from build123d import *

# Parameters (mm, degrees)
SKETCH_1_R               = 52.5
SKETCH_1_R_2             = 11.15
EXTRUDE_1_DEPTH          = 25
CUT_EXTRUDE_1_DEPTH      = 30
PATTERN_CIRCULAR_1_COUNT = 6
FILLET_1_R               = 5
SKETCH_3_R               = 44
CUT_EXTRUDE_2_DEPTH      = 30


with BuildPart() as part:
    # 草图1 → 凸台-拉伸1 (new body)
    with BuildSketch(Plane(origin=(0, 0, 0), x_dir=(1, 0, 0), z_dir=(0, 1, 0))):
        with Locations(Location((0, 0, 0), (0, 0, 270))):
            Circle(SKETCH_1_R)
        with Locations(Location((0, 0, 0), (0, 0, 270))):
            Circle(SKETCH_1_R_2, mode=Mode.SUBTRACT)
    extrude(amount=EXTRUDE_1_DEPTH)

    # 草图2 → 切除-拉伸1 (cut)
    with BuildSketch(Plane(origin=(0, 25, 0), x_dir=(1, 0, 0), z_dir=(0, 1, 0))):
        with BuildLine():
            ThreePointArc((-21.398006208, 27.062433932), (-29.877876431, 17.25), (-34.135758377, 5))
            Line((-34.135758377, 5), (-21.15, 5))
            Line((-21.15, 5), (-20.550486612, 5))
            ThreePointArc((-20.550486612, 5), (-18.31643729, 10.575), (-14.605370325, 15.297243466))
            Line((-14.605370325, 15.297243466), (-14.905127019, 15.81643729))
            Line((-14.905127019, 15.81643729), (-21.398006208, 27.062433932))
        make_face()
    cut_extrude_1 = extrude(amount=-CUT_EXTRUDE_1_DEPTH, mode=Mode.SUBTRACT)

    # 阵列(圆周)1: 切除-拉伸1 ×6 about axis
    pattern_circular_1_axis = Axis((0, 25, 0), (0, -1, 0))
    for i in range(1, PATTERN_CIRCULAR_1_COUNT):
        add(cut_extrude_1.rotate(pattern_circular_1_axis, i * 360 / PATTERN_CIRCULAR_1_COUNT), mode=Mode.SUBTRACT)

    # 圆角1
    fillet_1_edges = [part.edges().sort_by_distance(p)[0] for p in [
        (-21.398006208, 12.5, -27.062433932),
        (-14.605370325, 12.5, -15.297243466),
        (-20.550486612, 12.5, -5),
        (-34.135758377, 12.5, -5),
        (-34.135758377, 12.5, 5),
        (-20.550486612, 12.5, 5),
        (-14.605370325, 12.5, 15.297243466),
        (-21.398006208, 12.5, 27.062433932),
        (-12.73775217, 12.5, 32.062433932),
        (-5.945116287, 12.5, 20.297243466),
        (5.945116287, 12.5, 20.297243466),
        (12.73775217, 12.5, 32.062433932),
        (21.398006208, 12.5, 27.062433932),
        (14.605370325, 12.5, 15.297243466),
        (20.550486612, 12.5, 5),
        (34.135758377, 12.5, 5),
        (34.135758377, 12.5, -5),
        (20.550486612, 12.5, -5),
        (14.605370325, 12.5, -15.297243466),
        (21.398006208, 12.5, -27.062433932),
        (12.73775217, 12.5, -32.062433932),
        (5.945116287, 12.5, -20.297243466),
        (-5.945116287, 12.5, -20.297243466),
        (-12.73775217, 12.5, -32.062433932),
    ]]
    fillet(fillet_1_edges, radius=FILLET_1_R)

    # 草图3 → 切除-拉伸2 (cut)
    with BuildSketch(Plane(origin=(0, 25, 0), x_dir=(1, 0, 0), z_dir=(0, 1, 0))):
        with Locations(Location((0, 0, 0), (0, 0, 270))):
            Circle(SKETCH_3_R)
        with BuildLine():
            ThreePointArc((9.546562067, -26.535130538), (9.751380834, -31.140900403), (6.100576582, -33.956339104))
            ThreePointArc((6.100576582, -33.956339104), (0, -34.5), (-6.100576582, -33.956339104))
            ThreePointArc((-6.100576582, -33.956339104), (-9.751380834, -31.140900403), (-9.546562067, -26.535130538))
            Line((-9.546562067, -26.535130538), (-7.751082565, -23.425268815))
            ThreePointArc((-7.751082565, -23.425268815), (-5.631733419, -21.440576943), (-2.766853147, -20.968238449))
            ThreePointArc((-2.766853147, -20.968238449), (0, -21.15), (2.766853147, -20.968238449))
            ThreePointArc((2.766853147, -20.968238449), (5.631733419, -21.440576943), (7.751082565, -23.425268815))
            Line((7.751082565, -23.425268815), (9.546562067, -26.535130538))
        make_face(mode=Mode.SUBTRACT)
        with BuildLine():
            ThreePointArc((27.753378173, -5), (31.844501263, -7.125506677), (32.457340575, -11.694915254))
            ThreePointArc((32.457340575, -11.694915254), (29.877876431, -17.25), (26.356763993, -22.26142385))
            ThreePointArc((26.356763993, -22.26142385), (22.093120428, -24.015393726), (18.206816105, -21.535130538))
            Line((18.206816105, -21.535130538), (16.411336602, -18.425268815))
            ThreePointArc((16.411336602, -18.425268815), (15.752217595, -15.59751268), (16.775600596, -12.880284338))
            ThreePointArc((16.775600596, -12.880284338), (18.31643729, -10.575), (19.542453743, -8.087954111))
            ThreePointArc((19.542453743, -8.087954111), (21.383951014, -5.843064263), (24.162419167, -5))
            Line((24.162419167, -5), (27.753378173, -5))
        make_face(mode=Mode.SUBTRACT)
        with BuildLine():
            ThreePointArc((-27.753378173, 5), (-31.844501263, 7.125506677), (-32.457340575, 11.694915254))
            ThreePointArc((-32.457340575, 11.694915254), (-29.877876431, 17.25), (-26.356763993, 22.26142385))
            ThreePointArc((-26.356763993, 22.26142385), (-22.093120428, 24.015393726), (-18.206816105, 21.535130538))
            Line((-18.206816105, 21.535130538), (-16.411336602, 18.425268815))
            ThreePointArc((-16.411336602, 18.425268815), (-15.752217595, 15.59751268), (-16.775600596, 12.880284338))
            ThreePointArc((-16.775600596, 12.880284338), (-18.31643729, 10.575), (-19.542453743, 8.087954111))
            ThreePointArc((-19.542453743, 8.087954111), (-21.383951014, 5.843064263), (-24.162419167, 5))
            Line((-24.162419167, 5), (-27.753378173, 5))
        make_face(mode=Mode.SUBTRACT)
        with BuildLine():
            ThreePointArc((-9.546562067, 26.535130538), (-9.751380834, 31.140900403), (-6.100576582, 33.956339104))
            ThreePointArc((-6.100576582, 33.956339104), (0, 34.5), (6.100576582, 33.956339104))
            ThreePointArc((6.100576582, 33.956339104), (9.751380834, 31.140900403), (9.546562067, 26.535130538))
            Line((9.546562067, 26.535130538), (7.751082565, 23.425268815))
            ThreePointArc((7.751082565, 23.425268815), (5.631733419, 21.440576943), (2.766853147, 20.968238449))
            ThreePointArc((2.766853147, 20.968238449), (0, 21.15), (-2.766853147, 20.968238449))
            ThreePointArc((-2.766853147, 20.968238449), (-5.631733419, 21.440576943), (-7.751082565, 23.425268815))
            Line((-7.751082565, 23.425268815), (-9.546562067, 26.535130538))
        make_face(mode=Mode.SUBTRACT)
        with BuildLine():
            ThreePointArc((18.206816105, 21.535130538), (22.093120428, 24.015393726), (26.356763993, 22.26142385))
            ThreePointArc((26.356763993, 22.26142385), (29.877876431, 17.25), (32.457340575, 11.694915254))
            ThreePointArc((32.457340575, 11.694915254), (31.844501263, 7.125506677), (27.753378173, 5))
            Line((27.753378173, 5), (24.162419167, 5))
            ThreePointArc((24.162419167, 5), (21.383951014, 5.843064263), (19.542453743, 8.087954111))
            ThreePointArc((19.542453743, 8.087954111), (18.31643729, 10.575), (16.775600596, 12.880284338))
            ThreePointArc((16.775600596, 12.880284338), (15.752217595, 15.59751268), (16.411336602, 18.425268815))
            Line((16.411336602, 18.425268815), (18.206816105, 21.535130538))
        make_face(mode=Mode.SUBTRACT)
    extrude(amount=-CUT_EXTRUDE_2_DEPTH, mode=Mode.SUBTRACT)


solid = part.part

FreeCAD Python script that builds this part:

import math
import FreeCAD as App
import Part
import Sketcher
Q = App.Units.Quantity


def edges_at(feature, points):
    """Names of the edges that pass closest to the given points."""
    edges = feature.Shape.Edges
    near = lambda p: min(range(len(edges)), key=lambda i: edges[i].distToShape(Part.Vertex(*p))[0])
    return sorted({f"Edge{near(p) + 1}" for p in points})

doc = App.newDocument("Part")
body = doc.addObject("PartDesign::Body", "Body")

# Sketch on XZ plane
sketch1 = doc.addObject("Sketcher::SketchObject", "Sketch")
body.addObject(sketch1)
sketch1.AttachmentSupport = (doc.XZ_Plane, [""])
sketch1.MapMode = "FlatFace"
sketch1.addGeometry([
    Part.Circle(App.Vector(0, 0, 0), App.Vector(0, 0, 1), 52),
    Part.Circle(App.Vector(0, 0, 0), App.Vector(0, 0, 1), 11),
], False)
sketch1.addConstraint([
    Sketcher.Constraint("Coincident", 0, 3, -1, 1),
    Sketcher.Constraint("Coincident", 1, 3, -1, 1),
    Sketcher.Constraint("Diameter", 0, Q("105 mm")),
    Sketcher.Constraint("Diameter", 1, Q("22.3 mm")),
])
pad1 = doc.addObject("PartDesign::Pad", "Pad")
body.addObject(pad1)
pad1.Profile = sketch1
pad1.Length = 25
pad1.Reversed = True

# Sketch on XZ plane
sketch2 = doc.addObject("Sketcher::SketchObject", "Sketch001")
body.addObject(sketch2)
sketch2.AttachmentSupport = (doc.XZ_Plane, [""])
sketch2.MapMode = "FlatFace"
sketch2.AttachmentOffset = App.Placement(App.Vector(0, 0, -25), App.Rotation())
sketch2.addGeometry([
    Part.ArcOfCircle(Part.Circle(App.Vector(0, 0, 0), App.Vector(0, 0, 1), 34.5), math.radians(-172), math.radians(-128)),  # 0
    Part.LineSegment(App.Vector(-34.1, -5, 0), App.Vector(-20.6, -5, 0)),  # 1
    Part.ArcOfCircle(Part.Circle(App.Vector(0, 0, 0), App.Vector(0, 0, 1), 21.1), math.radians(-166), math.radians(-134)),  # 2
    Part.LineSegment(App.Vector(-14.6, -15.3, 0), App.Vector(-14.9, -15.8, 0)),  # 3
    Part.LineSegment(App.Vector(-14.9, -15.8, 0), App.Vector(-21.4, -27.1, 0)),  # 4
], False)
sketch2.addConstraint([
    Sketcher.Constraint("Coincident", 0, 1, 1, 1),
    Sketcher.Constraint("Coincident", 1, 2, 2, 1),
    Sketcher.Constraint("Coincident", 2, 2, 3, 1),
    Sketcher.Constraint("Coincident", 3, 2, 4, 1),
    Sketcher.Constraint("Coincident", 4, 2, 0, 2),
    Sketcher.Constraint("Horizontal", 1),
    Sketcher.Constraint("Coincident", 0, 3, -1, 1),
    Sketcher.Constraint("Coincident", 2, 3, -1, 1),
    Sketcher.Constraint("Parallel", 3, 4),
    Sketcher.Constraint("Radius", 0, Q("34.5 mm")),
    Sketcher.Constraint("Angle", 3, Q("-120 deg")),
    Sketcher.Constraint("Radius", 2, Q("21.15 mm")),
    Sketcher.Constraint("DistanceY", 0, 1, -1, 1, Q("5 mm")),
    Sketcher.Constraint("Distance", 4, Q("12.985758 mm")),
    Sketcher.Constraint("DistanceX", 2, 2, -1, 1, Q("14.60537 mm")),
])
pocket1 = doc.addObject("PartDesign::Pocket", "Pocket")
body.addObject(pocket1)
pocket1.Profile = sketch2
pocket1.Length = 30
pocket1.Reversed = True
doc.recompute()

polarpattern = doc.addObject("PartDesign::PolarPattern", "PolarPattern")
body.addObject(polarpattern)
polarpattern.Originals = [pocket1]
polarpattern.Axis = (doc.Y_Axis, [""])
polarpattern.Angle = 360
polarpattern.Occurrences = 6
body.Tip = polarpattern
doc.recompute()

fillet = doc.addObject("PartDesign::Fillet", "Fillet")
body.addObject(fillet)
fillet.Base = (polarpattern, edges_at(polarpattern, [
    (-21.398, 12.5, -27.062),
    (-14.605, 12.5, -15.297),
    (-20.55, 12.5, -5),
    (-34.136, 12.5, -5),
    (-34.136, 12.5, 5),
    (-20.55, 12.5, 5),
    (-14.605, 12.5, 15.297),
    (-21.398, 12.5, 27.062),
    (-12.738, 12.5, 32.062),
    (-5.945, 12.5, 20.297),
    (5.945, 12.5, 20.297),
    (12.738, 12.5, 32.062),
    (21.398, 12.5, 27.062),
    (14.605, 12.5, 15.297),
    (20.55, 12.5, 5),
    (34.136, 12.5, 5),
    (34.136, 12.5, -5),
    (20.55, 12.5, -5),
    (14.605, 12.5, -15.297),
    (21.398, 12.5, -27.062),
    (12.738, 12.5, -32.062),
    (5.945, 12.5, -20.297),
    (-5.945, 12.5, -20.297),
    (-12.738, 12.5, -32.062),
]))
fillet.Radius = 5

# Sketch on XZ plane
sketch3 = doc.addObject("Sketcher::SketchObject", "Sketch002")
body.addObject(sketch3)
sketch3.AttachmentSupport = (doc.XZ_Plane, [""])
sketch3.MapMode = "FlatFace"
sketch3.AttachmentOffset = App.Placement(App.Vector(0, 0, -25), App.Rotation())
sketch3.addGeometry([
    Part.Circle(App.Vector(0, 0, 0), App.Vector(0, 0, 1), 44),  # 0
    Part.LineSegment(App.Vector(-24.2, -5, 0), App.Vector(-27.8, -5, 0)),  # 1
    Part.ArcOfCircle(Part.Circle(App.Vector(-27.8, -10, 0), App.Vector(0, 0, 1), 5), math.radians(90), math.radians(200)),  # 2
    Part.ArcOfCircle(Part.Circle(App.Vector(0, 0, 0), App.Vector(0, 0, 1), 34.5), math.radians(-160), math.radians(-140)),  # 3
    Part.ArcOfCircle(Part.Circle(App.Vector(-22.5, -19, 0), App.Vector(0, 0, 1), 5), math.radians(-140), math.radians(-30)),  # 4
    Part.LineSegment(App.Vector(-18.2, -21.5, 0), App.Vector(-16.4, -18.4, 0)),  # 5
    Part.ArcOfCircle(Part.Circle(App.Vector(-20.7, -15.9, 0), App.Vector(0, 0, 1), 5), math.radians(-30), math.radians(38)),  # 6
    Part.ArcOfCircle(Part.Circle(App.Vector(0, 0, 0), App.Vector(0, 0, 1), 21.1), math.radians(-157.52), math.radians(-142.48)),  # 7
    Part.ArcOfCircle(Part.Circle(App.Vector(-24.2, -10, 0), App.Vector(0, 0, 1), 5), math.radians(22), math.radians(90)),  # 8
    Part.LineSegment(App.Vector(-7.8, -23.4, 0), App.Vector(-9.5, -26.5, 0)),  # 9
    Part.ArcOfCircle(Part.Circle(App.Vector(-5.2, -29, 0), App.Vector(0, 0, 1), 5), math.radians(150), math.radians(260)),  # 10
    Part.ArcOfCircle(Part.Circle(App.Vector(0, 0, 0), App.Vector(0, 0, 1), 34.5), math.radians(-100), math.radians(-80)),  # 11
    Part.ArcOfCircle(Part.Circle(App.Vector(5.2, -29, 0), App.Vector(0, 0, 1), 5), math.radians(-80), math.radians(30)),  # 12
    Part.LineSegment(App.Vector(9.5, -26.5, 0), App.Vector(7.8, -23.4, 0)),  # 13
    Part.ArcOfCircle(Part.Circle(App.Vector(3.4, -25.9, 0), App.Vector(0, 0, 1), 5), math.radians(30), math.radians(98)),  # 14
    Part.ArcOfCircle(Part.Circle(App.Vector(0, 0, 0), App.Vector(0, 0, 1), 21.1), math.radians(-97.52), math.radians(-82.48)),  # 15
    Part.ArcOfCircle(Part.Circle(App.Vector(-3.4, -25.9, 0), App.Vector(0, 0, 1), 5), math.radians(82), math.radians(150)),  # 16
    Part.LineSegment(App.Vector(16.4, -18.4, 0), App.Vector(18.2, -21.5, 0)),  # 17
    Part.ArcOfCircle(Part.Circle(App.Vector(22.5, -19, 0), App.Vector(0, 0, 1), 5), math.radians(-150), math.radians(-40)),  # 18
    Part.ArcOfCircle(Part.Circle(App.Vector(0, 0, 0), App.Vector(0, 0, 1), 34.5), math.radians(-40), math.radians(-20)),  # 19
    Part.ArcOfCircle(Part.Circle(App.Vector(27.8, -10, 0), App.Vector(0, 0, 1), 5), math.radians(-20), math.radians(90)),  # 20
    Part.LineSegment(App.Vector(27.8, -5, 0), App.Vector(24.2, -5, 0)),  # 21
    Part.ArcOfCircle(Part.Circle(App.Vector(24.2, -10, 0), App.Vector(0, 0, 1), 5), math.radians(90), math.radians(158)),  # 22
    Part.ArcOfCircle(Part.Circle(App.Vector(0, 0, 0), App.Vector(0, 0, 1), 21.1), math.radians(-37.52), math.radians(-22.48)),  # 23
    Part.ArcOfCircle(Part.Circle(App.Vector(20.7, -15.9, 0), App.Vector(0, 0, 1), 5), math.radians(142), math.radians(210)),  # 24
    Part.LineSegment(App.Vector(7.8, 23.4, 0), App.Vector(9.5, 26.5, 0)),  # 25
    Part.ArcOfCircle(Part.Circle(App.Vector(5.2, 29, 0), App.Vector(0, 0, 1), 5), math.radians(-30), math.radians(80)),  # 26
    Part.ArcOfCircle(Part.Circle(App.Vector(0, 0, 0), App.Vector(0, 0, 1), 34.5), math.radians(80), math.radians(100)),  # 27
    Part.ArcOfCircle(Part.Circle(App.Vector(-5.2, 29, 0), App.Vector(0, 0, 1), 5), math.radians(100), math.radians(210)),  # 28
    Part.LineSegment(App.Vector(-9.5, 26.5, 0), App.Vector(-7.8, 23.4, 0)),  # 29
    Part.ArcOfCircle(Part.Circle(App.Vector(-3.4, 25.9, 0), App.Vector(0, 0, 1), 5), math.radians(-150), math.radians(-82)),  # 30
    Part.ArcOfCircle(Part.Circle(App.Vector(0, 0, 0), App.Vector(0, 0, 1), 21.1), math.radians(82.48), math.radians(97.52)),  # 31
    Part.ArcOfCircle(Part.Circle(App.Vector(3.4, 25.9, 0), App.Vector(0, 0, 1), 5), math.radians(-98), math.radians(-30)),  # 32
    Part.LineSegment(App.Vector(24.2, 5, 0), App.Vector(27.8, 5, 0)),  # 33
    Part.ArcOfCircle(Part.Circle(App.Vector(27.8, 10, 0), App.Vector(0, 0, 1), 5), math.radians(-90), math.radians(20)),  # 34
    Part.ArcOfCircle(Part.Circle(App.Vector(0, 0, 0), App.Vector(0, 0, 1), 34.5), math.radians(20), math.radians(40)),  # 35
    Part.ArcOfCircle(Part.Circle(App.Vector(22.5, 19, 0), App.Vector(0, 0, 1), 5), math.radians(40), math.radians(150)),  # 36
    Part.LineSegment(App.Vector(18.2, 21.5, 0), App.Vector(16.4, 18.4, 0)),  # 37
    Part.ArcOfCircle(Part.Circle(App.Vector(20.7, 15.9, 0), App.Vector(0, 0, 1), 5), math.radians(150), math.radians(218)),  # 38
    Part.ArcOfCircle(Part.Circle(App.Vector(0, 0, 0), App.Vector(0, 0, 1), 21.1), math.radians(22.48), math.radians(37.52)),  # 39
    Part.ArcOfCircle(Part.Circle(App.Vector(24.2, 10, 0), App.Vector(0, 0, 1), 5), math.radians(-158), math.radians(-90)),  # 40
], False)
sketch3.addConstraint([
    Sketcher.Constraint("Tangent", 1, 2, 2, 1),
    Sketcher.Constraint("Tangent", 2, 2, 3, 1),
    Sketcher.Constraint("Tangent", 3, 2, 4, 1),
    Sketcher.Constraint("Tangent", 4, 2, 5, 1),
    Sketcher.Constraint("Tangent", 5, 2, 6, 1),
    Sketcher.Constraint("Tangent", 6, 2, 7, 2),
    Sketcher.Constraint("Tangent", 7, 1, 8, 1),
    Sketcher.Constraint("Tangent", 8, 2, 1, 1),
    Sketcher.Constraint("Tangent", 9, 2, 10, 1),
    Sketcher.Constraint("Tangent", 10, 2, 11, 1),
    Sketcher.Constraint("Tangent", 11, 2, 12, 1),
    Sketcher.Constraint("Tangent", 12, 2, 13, 1),
    Sketcher.Constraint("Tangent", 13, 2, 14, 1),
    Sketcher.Constraint("Tangent", 14, 2, 15, 2),
    Sketcher.Constraint("Tangent", 15, 1, 16, 1),
    Sketcher.Constraint("Tangent", 16, 2, 9, 1),
    Sketcher.Constraint("Tangent", 17, 2, 18, 1),
    Sketcher.Constraint("Tangent", 18, 2, 19, 1),
    Sketcher.Constraint("Tangent", 19, 2, 20, 1),
    Sketcher.Constraint("Tangent", 20, 2, 21, 1),
    Sketcher.Constraint("Tangent", 21, 2, 22, 1),
    Sketcher.Constraint("Tangent", 22, 2, 23, 2),
    Sketcher.Constraint("Tangent", 23, 1, 24, 1),
    Sketcher.Constraint("Tangent", 24, 2, 17, 1),
    Sketcher.Constraint("Tangent", 25, 2, 26, 1),
    Sketcher.Constraint("Tangent", 26, 2, 27, 1),
    Sketcher.Constraint("Tangent", 27, 2, 28, 1),
    Sketcher.Constraint("Tangent", 28, 2, 29, 1),
    Sketcher.Constraint("Tangent", 29, 2, 30, 1),
    Sketcher.Constraint("Tangent", 30, 2, 31, 2),
    Sketcher.Constraint("Tangent", 31, 1, 32, 1),
    Sketcher.Constraint("Tangent", 32, 2, 25, 1),
    Sketcher.Constraint("Tangent", 33, 2, 34, 1),
    Sketcher.Constraint("Tangent", 34, 2, 35, 1),
    Sketcher.Constraint("Tangent", 35, 2, 36, 1),
    Sketcher.Constraint("Tangent", 36, 2, 37, 1),
    Sketcher.Constraint("Tangent", 37, 2, 38, 1),
    Sketcher.Constraint("Tangent", 38, 2, 39, 2),
    Sketcher.Constraint("Tangent", 39, 1, 40, 1),
    Sketcher.Constraint("Tangent", 40, 2, 33, 1),
    Sketcher.Constraint("Horizontal", 1),
    Sketcher.Constraint("Horizontal", 21),
    Sketcher.Constraint("Horizontal", 33),
    Sketcher.Constraint("Coincident", 0, 3, -1, 1),
    Sketcher.Constraint("Coincident", 3, 3, -1, 1),
    Sketcher.Constraint("Coincident", 7, 3, -1, 1),
    Sketcher.Constraint("Coincident", 11, 3, -1, 1),
    Sketcher.Constraint("Coincident", 15, 3, -1, 1),
    Sketcher.Constraint("Coincident", 19, 3, -1, 1),
    Sketcher.Constraint("Coincident", 23, 3, -1, 1),
    Sketcher.Constraint("Coincident", 27, 3, -1, 1),
    Sketcher.Constraint("Coincident", 31, 3, -1, 1),
    Sketcher.Constraint("Coincident", 35, 3, -1, 1),
    Sketcher.Constraint("Coincident", 39, 3, -1, 1),
    Sketcher.Constraint("Equal", 2, 4),
    Sketcher.Constraint("Equal", 4, 6),
    Sketcher.Constraint("Equal", 6, 8),
    Sketcher.Constraint("Equal", 8, 10),
    Sketcher.Constraint("Equal", 3, 11),
    Sketcher.Constraint("Equal", 10, 12),
    Sketcher.Constraint("Equal", 12, 14),
    Sketcher.Constraint("Equal", 7, 15),
    Sketcher.Constraint("Equal", 14, 16),
    Sketcher.Constraint("Equal", 16, 18),
    Sketcher.Constraint("Equal", 11, 19),
    Sketcher.Constraint("Equal", 18, 20),
    Sketcher.Constraint("Equal", 20, 22),
    Sketcher.Constraint("Equal", 15, 23),
    Sketcher.Constraint("Equal", 22, 24),
    Sketcher.Constraint("Equal", 24, 26),
    Sketcher.Constraint("Equal", 19, 27),
    Sketcher.Constraint("Equal", 26, 28),
    Sketcher.Constraint("Equal", 28, 30),
    Sketcher.Constraint("Equal", 23, 31),
    Sketcher.Constraint("Equal", 30, 32),
    Sketcher.Constraint("Equal", 32, 34),
    Sketcher.Constraint("Equal", 27, 35),
    Sketcher.Constraint("Equal", 34, 36),
    Sketcher.Constraint("Equal", 36, 38),
    Sketcher.Constraint("Equal", 31, 39),
    Sketcher.Constraint("Equal", 38, 40),
    Sketcher.Constraint("Symmetric", 9, 2, 25, 2, -1, 1),
    Sketcher.Constraint("Symmetric", 12, 2, 28, 2, -1, 1),
    Sketcher.Constraint("Symmetric", 4, 2, 36, 2, -1, 1),
    Sketcher.Constraint("Symmetric", 9, 2, 12, 2, -2),
    Sketcher.Constraint("Symmetric", 4, 2, 17, 2, -2),
    Sketcher.Constraint("Parallel", 5, 9),
    Sketcher.Constraint("Horizontal", 8, 3, 20, 3),
    Sketcher.Constraint("Vertical", 20, 3, 34, 3),
    Sketcher.Constraint("Equal", 5, 9),
    Sketcher.Constraint("Diameter", 0, Q("88 mm")),
    Sketcher.Constraint("Radius", 2, Q("5 mm")),
    Sketcher.Constraint("Radius", 3, Q("34.5 mm")),
    Sketcher.Constraint("Angle", 5, Q("60 deg")),
    Sketcher.Constraint("Radius", 7, Q("21.15 mm")),
    Sketcher.Constraint("DistanceY", 2, 3, -1, 1, Q("10 mm")),
    Sketcher.Constraint("DistanceX", 6, 2, -1, 1, Q("16.775601 mm")),
])
pocket2 = doc.addObject("PartDesign::Pocket", "Pocket001")
body.addObject(pocket2)
pocket2.Profile = sketch3
pocket2.Length = 30
pocket2.Reversed = True

doc.recompute()
